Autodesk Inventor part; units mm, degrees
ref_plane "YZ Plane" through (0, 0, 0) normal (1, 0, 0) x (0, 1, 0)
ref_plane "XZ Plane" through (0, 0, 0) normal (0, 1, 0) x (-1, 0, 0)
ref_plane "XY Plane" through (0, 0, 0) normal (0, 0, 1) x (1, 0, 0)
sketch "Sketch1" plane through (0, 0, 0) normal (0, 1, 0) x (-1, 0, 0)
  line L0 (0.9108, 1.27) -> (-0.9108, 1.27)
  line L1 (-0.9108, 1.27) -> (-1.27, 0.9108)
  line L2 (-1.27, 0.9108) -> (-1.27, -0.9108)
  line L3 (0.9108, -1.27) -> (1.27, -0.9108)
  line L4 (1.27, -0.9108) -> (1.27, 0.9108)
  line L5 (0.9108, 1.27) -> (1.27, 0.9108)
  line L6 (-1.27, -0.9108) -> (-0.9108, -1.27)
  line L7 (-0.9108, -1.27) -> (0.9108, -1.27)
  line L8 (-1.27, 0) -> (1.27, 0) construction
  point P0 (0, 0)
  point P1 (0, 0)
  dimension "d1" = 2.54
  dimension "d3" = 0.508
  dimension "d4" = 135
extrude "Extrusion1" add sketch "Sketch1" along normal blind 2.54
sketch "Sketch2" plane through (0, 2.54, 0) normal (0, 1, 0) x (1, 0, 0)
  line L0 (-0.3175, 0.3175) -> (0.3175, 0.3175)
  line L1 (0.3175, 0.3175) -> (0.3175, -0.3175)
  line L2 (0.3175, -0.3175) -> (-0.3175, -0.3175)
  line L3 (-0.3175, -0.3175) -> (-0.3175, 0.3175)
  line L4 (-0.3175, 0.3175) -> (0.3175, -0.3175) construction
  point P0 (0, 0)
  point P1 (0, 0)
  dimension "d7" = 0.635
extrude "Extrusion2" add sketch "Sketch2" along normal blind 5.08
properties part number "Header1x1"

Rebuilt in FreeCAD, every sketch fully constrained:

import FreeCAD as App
import Part
import Sketcher
Q = App.Units.Quantity


def add_polygon(sketch, points):
    """Adds a closed chain of lines whose ends are joined by coincident constraints."""
    first, n = sketch.GeometryCount, len(points)
    for a, b in zip(points, points[1:] + points[:1]):
        sketch.addGeometry(Part.LineSegment(App.Vector(*a, 0), App.Vector(*b, 0)), False)
    for i in range(n):
        sketch.addConstraint(Sketcher.Constraint("Coincident", first + i, 2, first + (i + 1) % n, 1))

doc = App.newDocument("Part")
body = doc.addObject("PartDesign::Body", "Body")

sketch1 = body.newObject("Sketcher::SketchObject", "Sketch")
sketch1.AttachmentSupport = (doc.getObject("XZ_Plane"), [""])
sketch1.MapMode = "FlatFace"
add_polygon(sketch1, [(-1.3, 0.9), (-0.9, 1.3), (0.9, 1.3), (1.3, 0.9), (1.3, -0.9), (0.9, -1.3), (-0.9, -1.3), (-1.3, -0.9)])
sketch1.addConstraint([
    Sketcher.Constraint("Horizontal", 1),
    Sketcher.Constraint("Vertical", 3),
    Sketcher.Constraint("Horizontal", 5),
    Sketcher.Constraint("Vertical", 7),
    Sketcher.Constraint("Symmetric", 0, 2, 4, 2, -1, 1),
    Sketcher.Constraint("Symmetric", 2, 2, 6, 2, -1, 1),
    Sketcher.Constraint("Perpendicular", 0, 2),
    Sketcher.Constraint("Perpendicular", 2, 4),
    Sketcher.Constraint("Perpendicular", 4, 6),
    Sketcher.Constraint("Horizontal", 3, 2, 6, 2),
    Sketcher.Constraint("Vertical", 1, 2, 4, 2),
    Sketcher.Constraint("Equal", 5, 3),
    Sketcher.Constraint("DistanceY", 4, 2, 1, 2, Q("0.1 in")),
    Sketcher.Constraint("Distance", 0, Q("0.02 in")),
])
pad1 = body.newObject("PartDesign::Pad", "Pad")
pad1.Profile = sketch1
pad1.Length = Q("0.1 in")
pad1.Reversed = True

sketch2 = body.newObject("Sketcher::SketchObject", "Sketch001")
sketch2.AttachmentSupport = (doc.getObject("XZ_Plane"), [""])
sketch2.MapMode = "FlatFace"
sketch2.AttachmentOffset = App.Placement(App.Vector(0, 0, -0.1 * 25.4), App.Rotation())
add_polygon(sketch2, [(0.3, -0.3), (-0.3, -0.3), (-0.3, 0.3), (0.3, 0.3)])
sketch2.addConstraint([
    Sketcher.Constraint("Horizontal", 0),
    Sketcher.Constraint("Vertical", 1),
    Sketcher.Constraint("Horizontal", 2),
    Sketcher.Constraint("Vertical", 3),
    Sketcher.Constraint("Symmetric", 0, 2, 2, 2, -1, 1),
    Sketcher.Constraint("Equal", 2, 1),
    Sketcher.Constraint("DistanceX", 0, 2, 0, 1, Q("0.025 in")),
])
pad2 = body.newObject("PartDesign::Pad", "Pad001")
pad2.Profile = sketch2
pad2.Length = Q("0.2 in")
pad2.Reversed = True

doc.recompute()
